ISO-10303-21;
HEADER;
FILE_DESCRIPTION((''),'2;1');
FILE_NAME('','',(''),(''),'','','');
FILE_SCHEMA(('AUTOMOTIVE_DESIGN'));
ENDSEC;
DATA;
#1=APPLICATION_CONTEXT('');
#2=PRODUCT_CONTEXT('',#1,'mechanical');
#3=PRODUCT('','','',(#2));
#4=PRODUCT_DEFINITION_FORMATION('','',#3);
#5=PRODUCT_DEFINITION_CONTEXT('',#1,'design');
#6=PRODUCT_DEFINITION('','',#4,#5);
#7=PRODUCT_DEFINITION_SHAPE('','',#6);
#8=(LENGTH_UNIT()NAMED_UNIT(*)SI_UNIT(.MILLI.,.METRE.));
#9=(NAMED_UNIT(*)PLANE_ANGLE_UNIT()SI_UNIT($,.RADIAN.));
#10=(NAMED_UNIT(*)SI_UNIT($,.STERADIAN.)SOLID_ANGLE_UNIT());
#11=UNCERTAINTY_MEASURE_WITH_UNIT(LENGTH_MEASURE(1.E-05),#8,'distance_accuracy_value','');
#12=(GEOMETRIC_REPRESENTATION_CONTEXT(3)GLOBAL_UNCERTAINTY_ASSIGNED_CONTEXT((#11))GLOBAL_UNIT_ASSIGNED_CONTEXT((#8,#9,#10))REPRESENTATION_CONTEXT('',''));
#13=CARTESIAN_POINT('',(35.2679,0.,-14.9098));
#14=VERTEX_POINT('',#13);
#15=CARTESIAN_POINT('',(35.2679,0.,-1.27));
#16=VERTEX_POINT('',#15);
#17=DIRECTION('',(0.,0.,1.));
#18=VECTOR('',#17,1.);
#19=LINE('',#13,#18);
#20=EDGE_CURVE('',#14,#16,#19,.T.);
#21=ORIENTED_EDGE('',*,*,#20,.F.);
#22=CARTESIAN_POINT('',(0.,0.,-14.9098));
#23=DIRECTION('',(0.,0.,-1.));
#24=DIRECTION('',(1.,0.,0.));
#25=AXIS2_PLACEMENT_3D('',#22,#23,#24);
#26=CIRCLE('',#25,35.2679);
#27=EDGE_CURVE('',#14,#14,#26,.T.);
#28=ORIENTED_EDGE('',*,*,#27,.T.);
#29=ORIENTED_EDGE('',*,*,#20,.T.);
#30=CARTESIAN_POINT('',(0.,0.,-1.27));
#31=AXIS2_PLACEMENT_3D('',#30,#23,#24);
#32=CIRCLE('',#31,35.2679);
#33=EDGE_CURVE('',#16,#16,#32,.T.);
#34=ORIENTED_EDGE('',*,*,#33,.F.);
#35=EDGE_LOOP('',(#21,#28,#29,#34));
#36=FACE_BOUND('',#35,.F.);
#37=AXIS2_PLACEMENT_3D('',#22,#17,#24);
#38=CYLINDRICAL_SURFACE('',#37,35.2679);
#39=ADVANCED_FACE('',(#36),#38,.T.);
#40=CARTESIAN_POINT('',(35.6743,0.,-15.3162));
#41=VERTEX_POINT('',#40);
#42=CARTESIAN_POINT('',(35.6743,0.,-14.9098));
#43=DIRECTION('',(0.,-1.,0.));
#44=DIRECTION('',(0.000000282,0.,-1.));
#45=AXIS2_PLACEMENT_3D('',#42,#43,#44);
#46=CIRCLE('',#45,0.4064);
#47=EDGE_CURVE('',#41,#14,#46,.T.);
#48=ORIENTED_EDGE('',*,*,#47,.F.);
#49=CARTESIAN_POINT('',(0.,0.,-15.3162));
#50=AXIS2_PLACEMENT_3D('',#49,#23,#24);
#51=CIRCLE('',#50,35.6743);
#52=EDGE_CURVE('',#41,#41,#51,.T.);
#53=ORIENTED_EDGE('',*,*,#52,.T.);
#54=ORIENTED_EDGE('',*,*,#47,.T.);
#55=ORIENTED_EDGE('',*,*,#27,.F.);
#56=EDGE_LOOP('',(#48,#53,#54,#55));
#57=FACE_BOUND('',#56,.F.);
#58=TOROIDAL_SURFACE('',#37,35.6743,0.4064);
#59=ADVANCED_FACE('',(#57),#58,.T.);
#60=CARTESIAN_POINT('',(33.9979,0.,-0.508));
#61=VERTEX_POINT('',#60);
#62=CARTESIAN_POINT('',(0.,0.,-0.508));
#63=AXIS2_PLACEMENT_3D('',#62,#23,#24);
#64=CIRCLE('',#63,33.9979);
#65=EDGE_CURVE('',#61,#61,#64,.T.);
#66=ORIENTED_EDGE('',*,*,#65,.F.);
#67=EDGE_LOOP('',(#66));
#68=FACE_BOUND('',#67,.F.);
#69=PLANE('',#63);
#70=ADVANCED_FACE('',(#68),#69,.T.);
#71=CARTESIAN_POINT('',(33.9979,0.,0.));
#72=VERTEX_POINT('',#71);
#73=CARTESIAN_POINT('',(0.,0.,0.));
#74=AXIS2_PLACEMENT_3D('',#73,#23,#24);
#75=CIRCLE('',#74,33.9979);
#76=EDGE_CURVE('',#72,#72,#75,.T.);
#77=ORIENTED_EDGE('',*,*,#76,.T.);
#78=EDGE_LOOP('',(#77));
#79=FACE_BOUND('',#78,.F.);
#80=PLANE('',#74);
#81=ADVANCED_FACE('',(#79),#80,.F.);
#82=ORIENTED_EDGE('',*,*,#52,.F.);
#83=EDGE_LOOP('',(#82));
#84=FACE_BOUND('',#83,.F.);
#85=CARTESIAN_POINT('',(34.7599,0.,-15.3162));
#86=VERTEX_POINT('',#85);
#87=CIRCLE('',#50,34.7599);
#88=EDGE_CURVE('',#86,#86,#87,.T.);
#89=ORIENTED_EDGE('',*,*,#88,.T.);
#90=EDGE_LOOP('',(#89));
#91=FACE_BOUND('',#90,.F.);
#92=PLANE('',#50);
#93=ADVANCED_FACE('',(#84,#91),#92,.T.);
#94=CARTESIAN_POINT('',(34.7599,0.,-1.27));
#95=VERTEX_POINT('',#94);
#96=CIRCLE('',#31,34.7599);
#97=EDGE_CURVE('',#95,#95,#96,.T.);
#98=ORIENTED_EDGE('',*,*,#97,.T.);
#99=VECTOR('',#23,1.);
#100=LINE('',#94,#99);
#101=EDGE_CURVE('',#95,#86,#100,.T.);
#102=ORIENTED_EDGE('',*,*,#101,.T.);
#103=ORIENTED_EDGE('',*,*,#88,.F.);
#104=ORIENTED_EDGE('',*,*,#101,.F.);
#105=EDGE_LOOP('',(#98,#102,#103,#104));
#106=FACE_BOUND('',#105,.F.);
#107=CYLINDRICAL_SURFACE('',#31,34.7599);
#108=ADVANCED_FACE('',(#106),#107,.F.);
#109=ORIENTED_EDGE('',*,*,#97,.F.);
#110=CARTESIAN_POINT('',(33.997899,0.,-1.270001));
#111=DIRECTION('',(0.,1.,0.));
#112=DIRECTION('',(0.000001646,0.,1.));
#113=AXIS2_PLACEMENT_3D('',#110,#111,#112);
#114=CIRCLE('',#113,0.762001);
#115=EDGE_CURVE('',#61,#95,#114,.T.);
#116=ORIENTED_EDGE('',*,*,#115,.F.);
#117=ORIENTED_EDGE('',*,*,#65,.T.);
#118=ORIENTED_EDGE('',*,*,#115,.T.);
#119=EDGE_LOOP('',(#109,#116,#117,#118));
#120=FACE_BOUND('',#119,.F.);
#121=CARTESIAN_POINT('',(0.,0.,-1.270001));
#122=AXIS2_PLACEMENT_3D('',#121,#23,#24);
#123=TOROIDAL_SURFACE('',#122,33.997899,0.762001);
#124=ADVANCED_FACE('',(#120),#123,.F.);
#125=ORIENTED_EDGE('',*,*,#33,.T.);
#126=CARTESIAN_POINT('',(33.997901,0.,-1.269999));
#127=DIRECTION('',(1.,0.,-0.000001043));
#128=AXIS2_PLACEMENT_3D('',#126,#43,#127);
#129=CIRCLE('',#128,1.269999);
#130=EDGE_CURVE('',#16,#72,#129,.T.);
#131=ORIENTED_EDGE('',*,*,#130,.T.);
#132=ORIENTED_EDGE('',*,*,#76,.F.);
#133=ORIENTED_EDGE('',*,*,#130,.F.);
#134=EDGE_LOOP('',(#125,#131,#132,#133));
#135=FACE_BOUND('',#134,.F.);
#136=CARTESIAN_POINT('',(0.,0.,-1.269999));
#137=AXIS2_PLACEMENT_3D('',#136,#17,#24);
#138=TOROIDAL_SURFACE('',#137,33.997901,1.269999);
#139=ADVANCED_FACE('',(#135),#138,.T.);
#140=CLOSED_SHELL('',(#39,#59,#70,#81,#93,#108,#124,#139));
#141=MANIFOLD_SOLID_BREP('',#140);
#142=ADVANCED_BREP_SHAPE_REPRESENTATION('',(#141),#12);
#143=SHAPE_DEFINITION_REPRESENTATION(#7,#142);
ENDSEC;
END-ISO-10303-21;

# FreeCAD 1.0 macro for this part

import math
import FreeCAD as App
import Part
import Sketcher

V = App.Vector
Q = App.Units.Quantity

doc = App.newDocument("Part")
body = doc.addObject("PartDesign::Body", "Body")

# Sketch on XZ plane
sketch1 = doc.addObject("Sketcher::SketchObject", "Sketch")
body.addObject(sketch1)
sketch1.AttachmentSupport = (doc.XZ_Plane, [""])
sketch1.MapMode = "FlatFace"
sketch1.addGeometry([
    Part.LineSegment(V(33.9979, 0, 0), V(0, 0, 0)),  # 0
    Part.LineSegment(V(0, 0, 0), V(0, -0.508, 0)),  # 1
    Part.LineSegment(V(0, -0.508, 0), V(33.9979, -0.508, 0)),  # 2
    Part.ArcOfCircle(Part.Circle(V(33.997899, -1.270001, 0), V(0, 0, 1), 0.762001), math.radians(0.000094), math.radians(89.999906)),  # 3
    Part.LineSegment(V(34.7599, -1.27, 0), V(34.7599, -15.3162, 0)),  # 4
    Part.LineSegment(V(34.7599, -15.3162, 0), V(35.6743, -15.3162, 0)),  # 5
    Part.ArcOfCircle(Part.Circle(V(35.6743, -14.9098, 0), V(0, 0, 1), 0.4064), math.radians(-89.999984), math.radians(179.999984)),  # 6
    Part.LineSegment(V(35.2679, -14.9098, 0), V(35.2679, -1.27, 0)),  # 7
    Part.ArcOfCircle(Part.Circle(V(33.997901, -1.269999, 0), V(0, 0, 1), 1.269999), math.radians(-0.00006), math.radians(90.00006)),  # 8
], False)
sketch1.addConstraint([
    Sketcher.Constraint("Coincident", 0, 2, 1, 1),
    Sketcher.Constraint("Coincident", 1, 2, 2, 1),
    Sketcher.Constraint("Tangent", 2, 2, 3, 2),
    Sketcher.Constraint("Tangent", 3, 1, 4, 1),
    Sketcher.Constraint("Coincident", 4, 2, 5, 1),
    Sketcher.Constraint("Tangent", 5, 2, 6, 1),
    Sketcher.Constraint("Tangent", 6, 2, 7, 1),
    Sketcher.Constraint("Tangent", 7, 2, 8, 1),
    Sketcher.Constraint("Tangent", 8, 2, 0, 1),
    Sketcher.Constraint("Horizontal", 0),
    Sketcher.Constraint("Vertical", 1),
    Sketcher.Constraint("Horizontal", 2),
    Sketcher.Constraint("Vertical", 4),
    Sketcher.Constraint("Horizontal", 5),
    Sketcher.Constraint("Vertical", 7),
    Sketcher.Constraint("Coincident", 0, 2, -1, 1),
    Sketcher.Constraint("Coincident", 8, 3, 3, 3),
    Sketcher.Constraint("Radius", 3, Q("0.03 in")),
    Sketcher.Constraint("Radius", 8, Q("0.0499999 in")),
    Sketcher.Constraint("Radius", 6, Q("0.016 in")),
    Sketcher.Constraint("DistanceY", 4, 2, 4, 1, Q("0.553 in")),
    Sketcher.Constraint("DistanceX", 0, 2, 0, 1, Q("1.3385 in")),
])
revolution = doc.addObject("PartDesign::Revolution", "Revolution")
body.addObject(revolution)
revolution.Profile = sketch1
revolution.ReferenceAxis = (sketch1, ["V_Axis"])
revolution.Angle = 360

doc.recompute()
